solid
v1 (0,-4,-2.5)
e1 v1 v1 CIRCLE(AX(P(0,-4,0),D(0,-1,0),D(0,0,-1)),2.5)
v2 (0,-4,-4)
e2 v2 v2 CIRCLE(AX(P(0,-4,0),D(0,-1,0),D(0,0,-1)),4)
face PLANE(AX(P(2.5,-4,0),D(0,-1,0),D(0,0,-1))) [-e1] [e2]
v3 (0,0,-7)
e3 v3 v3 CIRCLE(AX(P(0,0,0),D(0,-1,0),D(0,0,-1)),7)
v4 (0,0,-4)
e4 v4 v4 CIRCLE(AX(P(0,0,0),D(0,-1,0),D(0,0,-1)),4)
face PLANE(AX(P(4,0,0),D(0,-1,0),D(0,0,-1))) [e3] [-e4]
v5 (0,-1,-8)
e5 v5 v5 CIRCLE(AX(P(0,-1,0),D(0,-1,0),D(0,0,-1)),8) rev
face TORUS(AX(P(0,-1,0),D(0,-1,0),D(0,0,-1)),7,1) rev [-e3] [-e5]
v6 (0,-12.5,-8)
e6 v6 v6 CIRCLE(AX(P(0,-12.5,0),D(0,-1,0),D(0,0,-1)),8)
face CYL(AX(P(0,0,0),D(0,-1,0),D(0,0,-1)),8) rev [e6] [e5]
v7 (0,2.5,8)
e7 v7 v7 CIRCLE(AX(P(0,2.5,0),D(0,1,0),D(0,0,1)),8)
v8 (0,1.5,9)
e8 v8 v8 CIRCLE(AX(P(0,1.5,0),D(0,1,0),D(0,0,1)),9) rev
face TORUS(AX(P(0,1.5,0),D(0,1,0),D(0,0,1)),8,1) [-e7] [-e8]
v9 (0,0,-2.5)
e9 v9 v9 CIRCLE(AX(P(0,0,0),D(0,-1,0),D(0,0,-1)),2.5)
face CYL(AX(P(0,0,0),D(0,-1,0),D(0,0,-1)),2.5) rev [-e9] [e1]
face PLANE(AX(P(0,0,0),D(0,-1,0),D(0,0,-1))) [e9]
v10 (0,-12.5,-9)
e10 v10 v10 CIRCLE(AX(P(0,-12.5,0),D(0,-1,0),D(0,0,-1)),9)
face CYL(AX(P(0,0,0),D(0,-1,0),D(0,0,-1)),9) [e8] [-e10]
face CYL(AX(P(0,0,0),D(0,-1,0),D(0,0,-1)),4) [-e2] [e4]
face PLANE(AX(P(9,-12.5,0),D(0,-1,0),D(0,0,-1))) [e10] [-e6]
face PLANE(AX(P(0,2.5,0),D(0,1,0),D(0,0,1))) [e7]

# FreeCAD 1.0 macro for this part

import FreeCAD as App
import Part
import Sketcher
from FreeCAD import Vector
Q = App.Units.Quantity


def edges_at(feature, points):
    """Names of the edges that pass closest to the given points."""
    edges = feature.Shape.Edges
    near = lambda p: min(range(len(edges)), key=lambda i: edges[i].distToShape(Part.Vertex(*p))[0])
    return sorted({f"Edge{near(p) + 1}" for p in points})


def add_polygon(sketch, points):
    """Adds a closed chain of lines whose ends are joined by coincident constraints."""
    first, n = sketch.GeometryCount, len(points)
    for a, b in zip(points, points[1:] + points[:1]):
        sketch.addGeometry(Part.LineSegment(App.Vector(*a, 0), App.Vector(*b, 0)), False)
    for i in range(n):
        sketch.addConstraint(Sketcher.Constraint("Coincident", first + i, 2, first + (i + 1) % n, 1))

doc = App.newDocument("Part")
body = doc.addObject("PartDesign::Body", "Body")

sketch1 = doc.addObject("Sketcher::SketchObject", "Sketch")
body.addObject(sketch1)
sketch1.AttachmentSupport = (doc.XY_Plane, [""])
sketch1.MapMode = "FlatFace"
add_polygon(sketch1, [(4, 0), (8, 0), (8, -12.5), (9, -12.5), (9, 2.5), (0, 2.5), (0, 0), (2.5, 0), (2.5, -4), (4, -4)])
sketch1.addConstraint([
    Sketcher.Constraint("Horizontal", 0),
    Sketcher.Constraint("Vertical", 1),
    Sketcher.Constraint("Horizontal", 2),
    Sketcher.Constraint("Vertical", 3),
    Sketcher.Constraint("Horizontal", 4),
    Sketcher.Constraint("Vertical", 5),
    Sketcher.Constraint("Horizontal", 6),
    Sketcher.Constraint("Vertical", 7),
    Sketcher.Constraint("Horizontal", 8),
    Sketcher.Constraint("Vertical", 9),
    Sketcher.Constraint("Coincident", 5, 2, -1, 1),
    Sketcher.Constraint("PointOnObject", 0, 2, -1),
    Sketcher.Constraint("Equal", 6, 5),
    Sketcher.Constraint("Equal", 0, 7),
    Sketcher.Constraint("DistanceX", 0, 1, 0, 2, Q("4 mm")),
    Sketcher.Constraint("DistanceX", 2, 1, 2, 2, Q("1 mm")),
    Sketcher.Constraint("DistanceX", 4, 2, 4, 1, Q("9 mm")),
    Sketcher.Constraint("DistanceY", 3, 1, 3, 2, Q("15 mm")),
    Sketcher.Constraint("DistanceX", 6, 1, 6, 2, Q("2.5 mm")),
])
revolution = doc.addObject("PartDesign::Revolution", "Revolution")
body.addObject(revolution)
revolution.Profile = sketch1
revolution.ReferenceAxis = (sketch1, ["V_Axis"])
revolution.Angle = 360
doc.recompute()

fillet = doc.addObject("PartDesign::Fillet", "Fillet")
body.addObject(fillet)
fillet.Base = (revolution, edges_at(revolution, [(0, 0, 8), (0, 2.5, 9)]))
fillet.Radius = 1

doc.recompute()
